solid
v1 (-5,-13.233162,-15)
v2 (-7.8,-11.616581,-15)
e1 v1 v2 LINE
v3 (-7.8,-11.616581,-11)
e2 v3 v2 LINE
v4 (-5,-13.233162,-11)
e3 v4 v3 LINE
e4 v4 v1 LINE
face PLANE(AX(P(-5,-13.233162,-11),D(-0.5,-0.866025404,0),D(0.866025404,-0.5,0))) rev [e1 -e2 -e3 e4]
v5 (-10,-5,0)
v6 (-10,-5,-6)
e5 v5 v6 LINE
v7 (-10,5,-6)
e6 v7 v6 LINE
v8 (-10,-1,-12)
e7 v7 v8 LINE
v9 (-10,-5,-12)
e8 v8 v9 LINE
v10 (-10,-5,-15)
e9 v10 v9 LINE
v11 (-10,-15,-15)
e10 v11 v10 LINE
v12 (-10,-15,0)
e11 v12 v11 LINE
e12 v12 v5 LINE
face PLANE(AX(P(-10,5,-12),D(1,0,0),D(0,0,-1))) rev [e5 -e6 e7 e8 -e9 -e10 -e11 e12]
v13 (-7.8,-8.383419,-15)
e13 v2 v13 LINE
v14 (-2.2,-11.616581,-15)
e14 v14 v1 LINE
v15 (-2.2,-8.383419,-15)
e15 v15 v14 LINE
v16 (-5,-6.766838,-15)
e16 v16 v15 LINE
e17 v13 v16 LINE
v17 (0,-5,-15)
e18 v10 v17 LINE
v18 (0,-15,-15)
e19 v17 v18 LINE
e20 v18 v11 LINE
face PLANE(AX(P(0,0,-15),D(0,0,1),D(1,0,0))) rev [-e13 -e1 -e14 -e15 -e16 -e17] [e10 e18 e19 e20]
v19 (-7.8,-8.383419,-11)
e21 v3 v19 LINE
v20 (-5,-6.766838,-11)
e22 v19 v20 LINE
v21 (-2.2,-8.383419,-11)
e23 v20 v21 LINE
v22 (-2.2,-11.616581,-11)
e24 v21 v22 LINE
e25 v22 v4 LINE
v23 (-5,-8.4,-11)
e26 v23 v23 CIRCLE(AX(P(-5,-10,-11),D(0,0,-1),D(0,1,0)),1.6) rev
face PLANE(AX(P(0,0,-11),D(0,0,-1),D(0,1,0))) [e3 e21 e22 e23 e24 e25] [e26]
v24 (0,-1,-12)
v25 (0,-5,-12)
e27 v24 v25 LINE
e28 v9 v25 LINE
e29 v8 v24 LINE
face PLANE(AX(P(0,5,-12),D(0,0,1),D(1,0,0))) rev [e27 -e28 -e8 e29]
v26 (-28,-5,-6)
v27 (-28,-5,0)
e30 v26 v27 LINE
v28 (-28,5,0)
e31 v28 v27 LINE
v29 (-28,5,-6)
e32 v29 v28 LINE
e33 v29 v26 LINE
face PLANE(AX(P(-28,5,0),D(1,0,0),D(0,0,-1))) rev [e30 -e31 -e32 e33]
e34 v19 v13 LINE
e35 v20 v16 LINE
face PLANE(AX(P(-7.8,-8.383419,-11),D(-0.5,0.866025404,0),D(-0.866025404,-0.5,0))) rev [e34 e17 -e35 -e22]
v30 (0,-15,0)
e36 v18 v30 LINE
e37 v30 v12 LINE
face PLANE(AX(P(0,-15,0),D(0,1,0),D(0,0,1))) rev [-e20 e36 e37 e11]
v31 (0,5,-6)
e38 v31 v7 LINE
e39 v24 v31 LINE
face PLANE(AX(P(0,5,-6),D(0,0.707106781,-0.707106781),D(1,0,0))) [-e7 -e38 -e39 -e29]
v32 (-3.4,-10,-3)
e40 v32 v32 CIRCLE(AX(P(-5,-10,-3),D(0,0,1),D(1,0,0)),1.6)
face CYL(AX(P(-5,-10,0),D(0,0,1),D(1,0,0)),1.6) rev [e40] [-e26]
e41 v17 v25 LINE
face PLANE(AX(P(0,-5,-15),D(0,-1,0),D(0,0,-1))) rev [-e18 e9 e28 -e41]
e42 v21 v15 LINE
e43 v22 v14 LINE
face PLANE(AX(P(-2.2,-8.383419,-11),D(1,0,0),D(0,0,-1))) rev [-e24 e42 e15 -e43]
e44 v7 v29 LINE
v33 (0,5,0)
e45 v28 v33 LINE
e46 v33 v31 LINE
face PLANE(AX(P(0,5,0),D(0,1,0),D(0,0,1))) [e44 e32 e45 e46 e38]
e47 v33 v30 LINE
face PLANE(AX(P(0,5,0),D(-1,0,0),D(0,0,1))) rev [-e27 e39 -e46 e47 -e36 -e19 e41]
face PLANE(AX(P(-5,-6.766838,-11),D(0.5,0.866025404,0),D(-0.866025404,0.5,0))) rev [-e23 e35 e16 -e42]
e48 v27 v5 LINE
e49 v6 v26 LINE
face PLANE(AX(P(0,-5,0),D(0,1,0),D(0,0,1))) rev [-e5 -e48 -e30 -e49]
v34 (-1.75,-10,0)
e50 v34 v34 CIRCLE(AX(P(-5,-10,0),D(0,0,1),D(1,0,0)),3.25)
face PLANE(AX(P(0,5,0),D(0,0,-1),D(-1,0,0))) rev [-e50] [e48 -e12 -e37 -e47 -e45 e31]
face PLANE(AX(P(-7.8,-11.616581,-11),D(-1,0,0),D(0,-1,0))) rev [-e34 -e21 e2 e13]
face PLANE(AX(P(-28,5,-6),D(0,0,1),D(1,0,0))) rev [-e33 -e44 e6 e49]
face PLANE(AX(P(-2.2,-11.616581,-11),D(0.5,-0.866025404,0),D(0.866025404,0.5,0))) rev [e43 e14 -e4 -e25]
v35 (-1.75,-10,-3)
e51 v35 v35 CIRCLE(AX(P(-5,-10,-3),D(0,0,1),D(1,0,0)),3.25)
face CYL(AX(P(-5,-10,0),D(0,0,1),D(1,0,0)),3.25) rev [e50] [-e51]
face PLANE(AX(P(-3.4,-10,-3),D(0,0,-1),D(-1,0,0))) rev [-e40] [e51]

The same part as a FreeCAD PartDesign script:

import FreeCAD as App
import Part
import Sketcher

V = App.Vector
Q = App.Units.Quantity


def edges_at(feature, points):
    """Names of the edges that pass closest to the given points."""
    edges = feature.Shape.Edges
    near = lambda p: min(range(len(edges)), key=lambda i: edges[i].distToShape(Part.Vertex(*p))[0])
    return sorted({f"Edge{near(p) + 1}" for p in points})

doc = App.newDocument("Part")
params = doc.addObject("Spreadsheet::Sheet", "Params")
for row, (alias, value) in enumerate([
    ("sketch1_width", "28 mm"),
    ("sketch1_width2", "10 mm"),
    ("sketch1_height", "12 mm"),
    ("pad1_length", "10 mm"),
    ("sketch2_width", "10 mm"),
    ("sketch2_height", "12 mm"),
    ("pad2_length", "10 mm"),
    ("sketch3_diameter", "3.2 mm"),
    ("hole_diameter", "3.2 mm"),
    ("hole_cbore_diameter", "6.5 mm"),
    ("hole_cbore_depth", "3 mm"),
    ("chamfer_size", "6 mm"),
    ("sketch4_diameter", "3.2 mm"),
    ("sketch4_width", "10 mm"),
    ("pad3_length", "3 mm"),
    ("pocket1_length", "4 mm"),
], start=1):
    params.set(f"A{row}", alias)
    params.set(f"B{row}", "=" + value)
    params.setAlias(f"B{row}", alias)

body = doc.addObject("PartDesign::Body", "Body")

sketch1 = doc.addObject("Sketcher::SketchObject", "Sketch")
body.addObject(sketch1)
sketch1.AttachmentSupport = (doc.XZ_Plane, [""])
sketch1.MapMode = "FlatFace"
sketch1.addGeometry([
    Part.LineSegment(V(-28, 0, 0), V(0, 0, 0)),
    Part.LineSegment(V(0, 0, 0), V(0, -12, 0)),
    Part.LineSegment(V(0, -12, 0), V(-10, -12, 0)),
    Part.LineSegment(V(-10, -12, 0), V(-10, -6, 0)),
    Part.LineSegment(V(-10, -6, 0), V(-28, -6, 0)),
    Part.LineSegment(V(-28, -6, 0), V(-28, 0, 0)),
], False)
sketch1.addConstraint([
    Sketcher.Constraint("Coincident", 0, 2, 1, 1),
    Sketcher.Constraint("Coincident", 1, 2, 2, 1),
    Sketcher.Constraint("Coincident", 2, 2, 3, 1),
    Sketcher.Constraint("Coincident", 3, 2, 4, 1),
    Sketcher.Constraint("Coincident", 4, 2, 5, 1),
    Sketcher.Constraint("Coincident", 5, 2, 0, 1),
    Sketcher.Constraint("Horizontal", 0),
    Sketcher.Constraint("Vertical", 1),
    Sketcher.Constraint("Horizontal", 2),
    Sketcher.Constraint("Vertical", 3),
    Sketcher.Constraint("Horizontal", 4),
    Sketcher.Constraint("Vertical", 5),
    Sketcher.Constraint("Coincident", 0, 2, -1, 1),
    Sketcher.Constraint("Equal", 3, 5),
    Sketcher.Constraint("DistanceX", 0, 1, 0, 2, 28.0),
    Sketcher.Constraint("DistanceX", 2, 2, 2, 1, 10.0),
    Sketcher.Constraint("DistanceY", 1, 2, 1, 1, 12.0),
])
sketch1.setExpression("Constraints[14]", "Params.sketch1_width")
sketch1.setExpression("Constraints[15]", "Params.sketch1_width2")
sketch1.setExpression("Constraints[16]", "Params.sketch1_height")
pad1 = doc.addObject("PartDesign::Pad", "Pad")
body.addObject(pad1)
pad1.Profile = sketch1
pad1.setExpression("Length", "Params.pad1_length")
pad1.Midplane = True

sketch2 = doc.addObject("Sketcher::SketchObject", "Sketch001")
body.addObject(sketch2)
sketch2.AttachmentSupport = (doc.XZ_Plane, [""])
sketch2.MapMode = "FlatFace"
sketch2.AttachmentOffset = App.Placement(V(0, 0, 5), App.Rotation())
sketch2.addGeometry([
    Part.LineSegment(V(-10, 0, 0), V(-10, -12, 0)),
    Part.LineSegment(V(-10, -12, 0), V(0, -12, 0)),
    Part.LineSegment(V(0, -12, 0), V(0, 0, 0)),
    Part.LineSegment(V(0, 0, 0), V(-10, 0, 0)),
], False)
sketch2.addConstraint([
    Sketcher.Constraint("Coincident", 0, 2, 1, 1),
    Sketcher.Constraint("Coincident", 1, 2, 2, 1),
    Sketcher.Constraint("Coincident", 2, 2, 3, 1),
    Sketcher.Constraint("Coincident", 3, 2, 0, 1),
    Sketcher.Constraint("Vertical", 0),
    Sketcher.Constraint("Horizontal", 1),
    Sketcher.Constraint("Vertical", 2),
    Sketcher.Constraint("Horizontal", 3),
    Sketcher.Constraint("Coincident", 2, 2, -1, 1),
    Sketcher.Constraint("DistanceX", 1, 1, 1, 2, 10.0),
    Sketcher.Constraint("DistanceY", 0, 2, 0, 1, 12.0),
])
sketch2.setExpression("Constraints[9]", "Params.sketch2_width")
sketch2.setExpression("Constraints[10]", "Params.sketch2_height")
pad2 = doc.addObject("PartDesign::Pad", "Pad001")
body.addObject(pad2)
pad2.Profile = sketch2
pad2.setExpression("Length", "Params.pad2_length")

sketch3 = doc.addObject("Sketcher::SketchObject", "Sketch002")
body.addObject(sketch3)
sketch3.AttachmentSupport = (doc.XY_Plane, [""])
sketch3.MapMode = "FlatFace"
sketch3.addGeometry(Part.Circle(V(-5, -10, 0), V(0, 0, 1), 1.6), False)
sketch3.addConstraint([
    Sketcher.Constraint("Diameter", 0, 3.2),
    Sketcher.Constraint("DistanceX", 0, 3, -1, 1, 5.0),
    Sketcher.Constraint("DistanceY", 0, 3, -1, 1, 10.0),
])
sketch3.setExpression("Constraints[0]", "Params.sketch3_diameter")
doc.recompute()
hole = doc.addObject("PartDesign::Hole", "Hole")
body.addObject(hole)
hole.Profile = sketch3
hole.ThreadType = "None"
hole.setExpression("Diameter", "Params.hole_diameter")
hole.DepthType = "ThroughAll"
hole.HoleCutType = "Counterbore"
hole.setExpression("HoleCutDiameter", "Params.hole_cbore_diameter")
hole.setExpression("HoleCutDepth", "Params.hole_cbore_depth")
doc.recompute()

chamfer = doc.addObject("PartDesign::Chamfer", "Chamfer")
body.addObject(chamfer)
chamfer.Base = (hole, edges_at(hole, [(-5, 5, -12)]))
chamfer.setExpression("Size", "Params.chamfer_size")

sketch4 = doc.addObject("Sketcher::SketchObject", "Sketch003")
body.addObject(sketch4)
sketch4.AttachmentSupport = (doc.XY_Plane, [""])
sketch4.MapMode = "FlatFace"
sketch4.AttachmentOffset = App.Placement(V(0, 0, -15), App.Rotation())
sketch4.addGeometry([
    Part.LineSegment(V(0, -5, 0), V(0, -15, 0)),
    Part.LineSegment(V(0, -15, 0), V(-10, -15, 0)),
    Part.LineSegment(V(-10, -15, 0), V(-10, -5, 0)),
    Part.LineSegment(V(-10, -5, 0), V(0, -5, 0)),
    Part.Circle(V(-5, -10, 0), V(0, 0, 1), 1.6),
], False)
sketch4.addConstraint([
    Sketcher.Constraint("Coincident", 0, 2, 1, 1),
    Sketcher.Constraint("Coincident", 1, 2, 2, 1),
    Sketcher.Constraint("Coincident", 2, 2, 3, 1),
    Sketcher.Constraint("Coincident", 3, 2, 0, 1),
    Sketcher.Constraint("Vertical", 0),
    Sketcher.Constraint("Horizontal", 1),
    Sketcher.Constraint("Vertical", 2),
    Sketcher.Constraint("Horizontal", 3),
    Sketcher.Constraint("PointOnObject", 0, 2, -2),
    Sketcher.Constraint("Equal", 3, 0),
    Sketcher.Constraint("Diameter", 4, 3.2),
    Sketcher.Constraint("DistanceX", 1, 2, 1, 1, 10.0),
    Sketcher.Constraint("DistanceX", 4, 3, -1, 1, 5.0),
    Sketcher.Constraint("DistanceY", 4, 3, -1, 1, 10.0),
    Sketcher.Constraint("DistanceY", 0, 2, -1, 1, 15.0),
])
sketch4.setExpression("Constraints[10]", "Params.sketch4_diameter")
sketch4.setExpression("Constraints[11]", "Params.sketch4_width")
pad3 = doc.addObject("PartDesign::Pad", "Pad002")
body.addObject(pad3)
pad3.Profile = sketch4
pad3.setExpression("Length", "Params.pad3_length")

sketch5 = doc.addObject("Sketcher::SketchObject", "Sketch004")
body.addObject(sketch5)
sketch5.AttachmentSupport = (doc.XY_Plane, [""])
sketch5.MapMode = "FlatFace"
sketch5.AttachmentOffset = App.Placement(V(0, 0, -15), App.Rotation())
sketch5.addGeometry([
    Part.LineSegment(V(-5, -13.2, 0), V(-7.8, -11.6, 0)),
    Part.LineSegment(V(-7.8, -11.6, 0), V(-7.8, -8.4, 0)),
    Part.LineSegment(V(-7.8, -8.4, 0), V(-5, -6.8, 0)),
    Part.LineSegment(V(-5, -6.8, 0), V(-2.2, -8.4, 0)),
    Part.LineSegment(V(-2.2, -8.4, 0), V(-2.2, -11.6, 0)),
    Part.LineSegment(V(-2.2, -11.6, 0), V(-5, -13.2, 0)),
], False)
sketch5.addConstraint([
    Sketcher.Constraint("Coincident", 0, 2, 1, 1),
    Sketcher.Constraint("Coincident", 1, 2, 2, 1),
    Sketcher.Constraint("Coincident", 2, 2, 3, 1),
    Sketcher.Constraint("Coincident", 3, 2, 4, 1),
    Sketcher.Constraint("Coincident", 4, 2, 5, 1),
    Sketcher.Constraint("Coincident", 5, 2, 0, 1),
    Sketcher.Constraint("Vertical", 1),
    Sketcher.Constraint("Vertical", 4),
    Sketcher.Constraint("Parallel", 0, 3),
    Sketcher.Constraint("Parallel", 2, 5),
    Sketcher.Constraint("Horizontal", 1, 2, 3, 2),
    Sketcher.Constraint("Horizontal", 0, 2, 4, 2),
    Sketcher.Constraint("Vertical", 2, 2, 5, 2),
    Sketcher.Constraint("Angle", 0, Q("150 deg")),
    Sketcher.Constraint("DistanceX", 2, 2, -1, 1, 5.0),
    Sketcher.Constraint("DistanceX", 0, 2, -1, 1, 7.8),
    Sketcher.Constraint("DistanceY", 1, 1, 1, 2, 3.233162),
    Sketcher.Constraint("DistanceY", 0, 2, -1, 1, 11.616581),
])
pocket1 = doc.addObject("PartDesign::Pocket", "Pocket")
body.addObject(pocket1)
pocket1.Profile = sketch5
pocket1.setExpression("Length", "Params.pocket1_length")
pocket1.Reversed = True

doc.recompute()
